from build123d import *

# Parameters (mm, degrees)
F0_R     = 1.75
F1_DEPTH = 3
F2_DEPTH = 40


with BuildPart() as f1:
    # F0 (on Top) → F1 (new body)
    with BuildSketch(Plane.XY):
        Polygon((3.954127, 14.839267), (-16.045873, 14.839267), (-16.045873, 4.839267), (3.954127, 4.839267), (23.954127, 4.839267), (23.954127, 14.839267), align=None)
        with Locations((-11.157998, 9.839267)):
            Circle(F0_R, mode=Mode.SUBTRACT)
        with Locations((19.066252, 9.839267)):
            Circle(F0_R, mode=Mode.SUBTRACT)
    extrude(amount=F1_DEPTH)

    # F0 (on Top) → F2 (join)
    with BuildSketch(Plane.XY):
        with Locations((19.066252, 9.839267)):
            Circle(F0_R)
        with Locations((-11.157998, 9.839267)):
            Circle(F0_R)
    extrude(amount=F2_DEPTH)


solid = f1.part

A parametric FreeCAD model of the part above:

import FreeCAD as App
import Part
import Sketcher

doc = App.newDocument("Part")
body = doc.addObject("PartDesign::Body", "Body")

# Sketch on XY plane
sketch1 = body.newObject("Sketcher::SketchObject", "Sketch")
sketch1.AttachmentSupport = (doc.getObject("XY_Plane"), [""])
sketch1.MapMode = "FlatFace"
sketch1.addGeometry([
    Part.LineSegment(App.Vector(-16, 14.8, 0), App.Vector(-16, 4.8, 0)),  # 0
    Part.LineSegment(App.Vector(-16, 4.8, 0), App.Vector(24, 4.8, 0)),  # 1
    Part.LineSegment(App.Vector(24, 4.8, 0), App.Vector(24, 14.8, 0)),  # 2
    Part.LineSegment(App.Vector(24, 14.8, 0), App.Vector(-16, 14.8, 0)),  # 3
    Part.Circle(App.Vector(-11.2, 9.8, 0), App.Vector(0, 0, 1), 1.8),  # 4
    Part.Circle(App.Vector(19.1, 9.8, 0), App.Vector(0, 0, 1), 1.8),  # 5
], False)
sketch1.addConstraint([
    Sketcher.Constraint("Coincident", 0, 2, 1, 1),
    Sketcher.Constraint("Coincident", 1, 2, 2, 1),
    Sketcher.Constraint("Coincident", 2, 2, 3, 1),
    Sketcher.Constraint("Coincident", 3, 2, 0, 1),
    Sketcher.Constraint("Vertical", 0),
    Sketcher.Constraint("Horizontal", 1),
    Sketcher.Constraint("Vertical", 2),
    Sketcher.Constraint("Horizontal", 3),
    Sketcher.Constraint("Equal", 4, 5),
    Sketcher.Constraint("Horizontal", 4, 3, 5, 3),
    Sketcher.Constraint("Diameter", 4, 3.5),
    Sketcher.Constraint("DistanceX", 1, 1, 1, 2, 40.0),
    Sketcher.Constraint("DistanceY", 0, 2, 0, 1, 10.0),
    Sketcher.Constraint("DistanceY", 0, 2, 4, 3, 5.0),
    Sketcher.Constraint("DistanceX", -1, 1, 5, 3, 19.066252),
    Sketcher.Constraint("DistanceX", 4, 3, 5, 3, 30.22425),
    Sketcher.Constraint("DistanceY", -1, 1, 4, 3, 9.839267),
    Sketcher.Constraint("DistanceX", 0, 2, -1, 1, 16.045873),
])
pad1 = body.newObject("PartDesign::Pad", "Pad")
pad1.Profile = sketch1
pad1.Length = 3

# Sketch on XY plane
sketch2 = body.newObject("Sketcher::SketchObject", "Sketch001")
sketch2.AttachmentSupport = (doc.getObject("XY_Plane"), [""])
sketch2.MapMode = "FlatFace"
sketch2.addGeometry([
    Part.Circle(App.Vector(19.1, 9.8, 0), App.Vector(0, 0, 1), 1.8),
    Part.Circle(App.Vector(-11.2, 9.8, 0), App.Vector(0, 0, 1), 1.8),
], False)
sketch2.addConstraint([
    Sketcher.Constraint("Equal", 0, 1),
    Sketcher.Constraint("Horizontal", 0, 3, 1, 3),
    Sketcher.Constraint("Diameter", 0, 3.5),
    Sketcher.Constraint("DistanceX", -1, 1, 0, 3, 19.066252),
    Sketcher.Constraint("DistanceX", 1, 3, 0, 3, 30.22425),
    Sketcher.Constraint("DistanceY", -1, 1, 0, 3, 9.839267),
])
pad2 = body.newObject("PartDesign::Pad", "Pad001")
pad2.Profile = sketch2
pad2.Length = 40

doc.recompute()
